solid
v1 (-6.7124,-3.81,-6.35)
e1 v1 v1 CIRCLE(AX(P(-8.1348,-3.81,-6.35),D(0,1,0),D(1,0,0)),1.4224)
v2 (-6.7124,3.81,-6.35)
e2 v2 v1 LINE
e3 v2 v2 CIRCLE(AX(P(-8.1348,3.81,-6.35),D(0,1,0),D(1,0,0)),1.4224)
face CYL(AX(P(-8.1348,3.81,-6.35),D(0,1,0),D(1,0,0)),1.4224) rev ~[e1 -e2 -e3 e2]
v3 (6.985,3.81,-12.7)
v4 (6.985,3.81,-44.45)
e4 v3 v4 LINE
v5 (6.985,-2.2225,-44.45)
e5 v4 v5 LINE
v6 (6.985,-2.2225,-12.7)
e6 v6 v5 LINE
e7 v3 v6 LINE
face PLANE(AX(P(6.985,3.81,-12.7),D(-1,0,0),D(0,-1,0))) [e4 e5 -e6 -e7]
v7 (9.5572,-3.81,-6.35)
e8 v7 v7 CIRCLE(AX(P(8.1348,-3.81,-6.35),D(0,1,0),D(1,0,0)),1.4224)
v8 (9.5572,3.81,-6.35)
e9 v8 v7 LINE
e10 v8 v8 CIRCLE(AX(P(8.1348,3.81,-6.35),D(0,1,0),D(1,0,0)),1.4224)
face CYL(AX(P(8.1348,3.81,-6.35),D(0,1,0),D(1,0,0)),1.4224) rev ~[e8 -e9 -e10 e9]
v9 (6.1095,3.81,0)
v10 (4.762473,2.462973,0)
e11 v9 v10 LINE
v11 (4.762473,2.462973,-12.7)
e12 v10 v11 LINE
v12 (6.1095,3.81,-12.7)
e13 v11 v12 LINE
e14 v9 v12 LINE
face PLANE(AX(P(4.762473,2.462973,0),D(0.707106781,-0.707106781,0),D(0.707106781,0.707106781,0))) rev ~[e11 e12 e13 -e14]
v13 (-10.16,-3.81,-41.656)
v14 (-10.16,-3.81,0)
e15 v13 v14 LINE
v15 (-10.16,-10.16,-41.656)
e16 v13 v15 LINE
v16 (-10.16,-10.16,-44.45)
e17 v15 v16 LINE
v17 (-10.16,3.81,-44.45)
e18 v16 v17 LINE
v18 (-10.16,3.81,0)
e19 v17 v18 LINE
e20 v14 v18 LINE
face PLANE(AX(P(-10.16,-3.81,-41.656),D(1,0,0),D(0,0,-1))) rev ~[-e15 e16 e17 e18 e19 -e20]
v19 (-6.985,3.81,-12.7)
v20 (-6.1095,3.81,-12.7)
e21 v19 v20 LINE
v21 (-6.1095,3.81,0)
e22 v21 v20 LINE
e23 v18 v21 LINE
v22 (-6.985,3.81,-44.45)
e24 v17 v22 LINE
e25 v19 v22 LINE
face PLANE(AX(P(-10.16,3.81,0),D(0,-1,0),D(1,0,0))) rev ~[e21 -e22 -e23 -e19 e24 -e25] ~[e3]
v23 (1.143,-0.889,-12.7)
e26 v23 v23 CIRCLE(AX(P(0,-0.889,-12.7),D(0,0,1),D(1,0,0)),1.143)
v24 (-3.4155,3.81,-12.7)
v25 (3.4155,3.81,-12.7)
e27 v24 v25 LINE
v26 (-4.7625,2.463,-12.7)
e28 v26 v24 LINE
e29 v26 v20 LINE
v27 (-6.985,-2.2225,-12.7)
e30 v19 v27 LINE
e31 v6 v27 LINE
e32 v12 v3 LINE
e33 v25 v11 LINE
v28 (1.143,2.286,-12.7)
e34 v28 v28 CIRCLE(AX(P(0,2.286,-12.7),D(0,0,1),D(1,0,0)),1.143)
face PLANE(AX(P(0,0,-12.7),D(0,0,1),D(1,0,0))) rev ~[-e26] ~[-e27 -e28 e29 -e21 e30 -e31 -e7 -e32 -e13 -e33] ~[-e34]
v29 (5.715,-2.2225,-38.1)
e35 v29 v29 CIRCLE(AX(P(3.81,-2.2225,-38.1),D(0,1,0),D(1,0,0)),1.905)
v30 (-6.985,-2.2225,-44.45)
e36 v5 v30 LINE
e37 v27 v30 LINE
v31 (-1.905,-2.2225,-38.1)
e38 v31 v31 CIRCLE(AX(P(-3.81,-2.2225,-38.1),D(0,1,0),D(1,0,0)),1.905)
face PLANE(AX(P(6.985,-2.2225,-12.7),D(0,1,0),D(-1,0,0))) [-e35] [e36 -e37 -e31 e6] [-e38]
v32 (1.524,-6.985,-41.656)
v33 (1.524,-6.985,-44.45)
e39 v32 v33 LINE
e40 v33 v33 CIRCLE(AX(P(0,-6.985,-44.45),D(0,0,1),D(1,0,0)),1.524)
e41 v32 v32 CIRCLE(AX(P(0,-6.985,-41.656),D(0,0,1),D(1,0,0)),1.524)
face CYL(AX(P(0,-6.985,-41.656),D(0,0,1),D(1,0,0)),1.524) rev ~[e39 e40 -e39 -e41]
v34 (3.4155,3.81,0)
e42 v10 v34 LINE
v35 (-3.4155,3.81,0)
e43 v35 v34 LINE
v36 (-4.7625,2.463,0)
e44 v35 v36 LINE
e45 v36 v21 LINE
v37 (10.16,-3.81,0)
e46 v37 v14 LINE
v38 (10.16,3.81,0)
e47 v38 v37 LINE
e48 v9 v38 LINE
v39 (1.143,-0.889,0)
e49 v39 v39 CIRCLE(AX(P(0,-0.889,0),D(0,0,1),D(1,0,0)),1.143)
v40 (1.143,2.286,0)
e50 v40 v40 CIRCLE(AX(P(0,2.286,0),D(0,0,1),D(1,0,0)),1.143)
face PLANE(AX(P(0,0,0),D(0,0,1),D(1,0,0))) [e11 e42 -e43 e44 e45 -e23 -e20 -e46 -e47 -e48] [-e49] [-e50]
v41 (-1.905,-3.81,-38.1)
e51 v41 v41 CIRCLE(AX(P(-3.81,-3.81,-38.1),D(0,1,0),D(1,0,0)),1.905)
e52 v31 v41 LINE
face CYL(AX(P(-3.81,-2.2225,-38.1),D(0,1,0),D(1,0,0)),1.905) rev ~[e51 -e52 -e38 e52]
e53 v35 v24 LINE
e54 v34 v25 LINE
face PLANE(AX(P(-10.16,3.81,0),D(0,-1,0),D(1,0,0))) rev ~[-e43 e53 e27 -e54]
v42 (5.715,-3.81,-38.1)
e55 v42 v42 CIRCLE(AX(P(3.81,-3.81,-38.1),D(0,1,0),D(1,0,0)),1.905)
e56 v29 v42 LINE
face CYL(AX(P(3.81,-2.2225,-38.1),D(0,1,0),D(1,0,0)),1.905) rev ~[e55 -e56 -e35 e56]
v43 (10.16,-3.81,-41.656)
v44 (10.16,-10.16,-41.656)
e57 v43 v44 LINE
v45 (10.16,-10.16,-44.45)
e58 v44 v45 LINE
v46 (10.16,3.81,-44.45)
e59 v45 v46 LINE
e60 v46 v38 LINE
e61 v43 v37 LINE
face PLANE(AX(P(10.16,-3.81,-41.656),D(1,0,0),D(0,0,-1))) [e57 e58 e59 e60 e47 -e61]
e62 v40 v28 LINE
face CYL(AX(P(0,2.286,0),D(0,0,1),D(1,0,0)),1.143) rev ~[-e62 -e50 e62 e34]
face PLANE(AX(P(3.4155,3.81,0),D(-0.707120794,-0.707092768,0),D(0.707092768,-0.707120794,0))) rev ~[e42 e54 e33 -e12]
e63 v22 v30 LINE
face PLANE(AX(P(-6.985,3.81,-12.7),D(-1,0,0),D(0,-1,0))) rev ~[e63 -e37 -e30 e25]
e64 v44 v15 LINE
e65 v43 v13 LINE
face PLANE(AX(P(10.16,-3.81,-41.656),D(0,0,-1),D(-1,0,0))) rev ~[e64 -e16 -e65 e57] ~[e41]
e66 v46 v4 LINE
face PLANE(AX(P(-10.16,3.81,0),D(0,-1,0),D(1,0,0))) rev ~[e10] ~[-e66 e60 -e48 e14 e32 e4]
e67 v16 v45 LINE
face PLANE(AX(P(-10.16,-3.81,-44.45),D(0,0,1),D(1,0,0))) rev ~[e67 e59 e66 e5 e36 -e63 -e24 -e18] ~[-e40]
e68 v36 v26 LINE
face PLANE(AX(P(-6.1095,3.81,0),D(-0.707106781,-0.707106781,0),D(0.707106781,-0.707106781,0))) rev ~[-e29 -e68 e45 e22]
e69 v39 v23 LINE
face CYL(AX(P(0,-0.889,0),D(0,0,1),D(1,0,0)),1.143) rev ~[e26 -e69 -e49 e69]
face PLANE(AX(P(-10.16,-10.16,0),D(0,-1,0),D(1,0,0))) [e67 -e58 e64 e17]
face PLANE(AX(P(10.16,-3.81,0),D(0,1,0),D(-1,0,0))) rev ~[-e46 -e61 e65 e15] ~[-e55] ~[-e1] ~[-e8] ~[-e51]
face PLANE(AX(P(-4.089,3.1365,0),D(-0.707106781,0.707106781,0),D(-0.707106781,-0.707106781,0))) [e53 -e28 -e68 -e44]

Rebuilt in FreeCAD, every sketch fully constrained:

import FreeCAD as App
import Part
import Sketcher
Q = App.Units.Quantity


def add_polygon(sketch, points):
    """Adds a closed chain of lines whose ends are joined by coincident constraints."""
    first, n = sketch.GeometryCount, len(points)
    for a, b in zip(points, points[1:] + points[:1]):
        sketch.addGeometry(Part.LineSegment(App.Vector(*a, 0), App.Vector(*b, 0)), False)
    for i in range(n):
        sketch.addConstraint(Sketcher.Constraint("Coincident", first + i, 2, first + (i + 1) % n, 1))

doc = App.newDocument("Part")
body = doc.addObject("PartDesign::Body", "Body")

sketch1 = doc.addObject("Sketcher::SketchObject", "Sketch")
body.addObject(sketch1)
sketch1.AttachmentSupport = (doc.XY_Plane, [""])
sketch1.MapMode = "FlatFace"
add_polygon(sketch1, [(10, 4), (-10, 4), (-10, -4), (10, -4)])
sketch1.addConstraint(Sketcher.Constraint("Horizontal", 0))
sketch1.addConstraint(Sketcher.Constraint("Vertical", 1))
sketch1.addConstraint(Sketcher.Constraint("Horizontal", 2))
sketch1.addConstraint(Sketcher.Constraint("Vertical", 3))
sketch1.addConstraint(Sketcher.Constraint("Symmetric", 0, 2, 2, 2, -1, 1))
sketch1.addConstraint(Sketcher.Constraint("DistanceX", 0, 2, 0, 1, Q("0.8 in")))
sketch1.addConstraint(Sketcher.Constraint("DistanceY", 1, 2, 1, 1, Q("0.3 in")))
pad1 = doc.addObject("PartDesign::Pad", "Pad")
body.addObject(pad1)
pad1.Profile = sketch1
pad1.Length = Q("0.5 in")
pad1.Reversed = True

sketch2 = doc.addObject("Sketcher::SketchObject", "Sketch001")
body.addObject(sketch2)
sketch2.AttachmentSupport = (doc.XY_Plane, [""])
sketch2.MapMode = "FlatFace"
add_polygon(sketch2, [(3.4, 3.8), (4.8, 2.5), (6.1, 3.8)])
add_polygon(sketch2, [(-6.1, 3.8), (-4.8, 2.5), (-3.4, 3.8)])
sketch2.addGeometry(Part.Circle(App.Vector(0, 2.3, 0), App.Vector(0, 0, 1), 1.1), False)
sketch2.addGeometry(Part.Circle(App.Vector(0, -0.9, 0), App.Vector(0, 0, 1), 1.1), False)
sketch2.addConstraint(Sketcher.Constraint("Horizontal", 2))
sketch2.addConstraint(Sketcher.Constraint("Horizontal", 5))
sketch2.addConstraint(Sketcher.Constraint("Equal", 6, 7))
sketch2.addConstraint(Sketcher.Constraint("Symmetric", 0, 2, 3, 2, -2))
sketch2.addConstraint(Sketcher.Constraint("Symmetric", 2, 2, 4, 2, -2))
sketch2.addConstraint(Sketcher.Constraint("PointOnObject", 6, 3, -2))
sketch2.addConstraint(Sketcher.Constraint("PointOnObject", 7, 3, -2))
sketch2.addConstraint(Sketcher.Constraint("Perpendicular", 0, 1))
sketch2.addConstraint(Sketcher.Constraint("Perpendicular", 1, 3))
sketch2.addConstraint(Sketcher.Constraint("Perpendicular", 3, 4))
sketch2.addConstraint(Sketcher.Constraint("Diameter", 6, Q("0.09 in")))
sketch2.addConstraint(Sketcher.Constraint("DistanceY", -1, 1, 6, 3, Q("0.09 in")))
sketch2.addConstraint(Sketcher.Constraint("DistanceY", 6, 3, 1, 2, Q("0.06 in")))
sketch2.addConstraint(Sketcher.Constraint("Distance", 0, Q("0.075 in")))
sketch2.addConstraint(Sketcher.Constraint("DistanceX", -1, 1, 0, 2, Q("0.1875 in")))
sketch2.addConstraint(Sketcher.Constraint("DistanceY", 7, 3, 6, 3, Q("0.125 in")))
pocket1 = doc.addObject("PartDesign::Pocket", "Pocket")
body.addObject(pocket1)
pocket1.Profile = sketch2
pocket1.Length = Q("0.5 in")

sketch3 = doc.addObject("Sketcher::SketchObject", "Sketch002")
body.addObject(sketch3)
sketch3.AttachmentSupport = (doc.XZ_Plane, [""])
sketch3.MapMode = "FlatFace"
sketch3.AttachmentOffset = App.Placement(App.Vector(0, 0, -0.15 * 25.4), App.Rotation())
sketch3.addGeometry(Part.Circle(App.Vector(-8.1, -6.3, 0), App.Vector(0, 0, 1), 1.4), False)
sketch3.addConstraint(Sketcher.Constraint("Diameter", 0, Q("0.112 in")))
sketch3.addConstraint(Sketcher.Constraint("DistanceY", 0, 3, -1, 1, Q("0.25 in")))
sketch3.addConstraint(Sketcher.Constraint("DistanceX", 0, 3, -1, 1, 8.1348))
pocket2 = doc.addObject("PartDesign::Pocket", "Pocket001")
body.addObject(pocket2)
pocket2.Profile = sketch3
pocket2.Length = Q("0.5 in")
pocket2.Reversed = True

sketch4 = doc.addObject("Sketcher::SketchObject", "Sketch003")
body.addObject(sketch4)
sketch4.AttachmentSupport = (doc.XZ_Plane, [""])
sketch4.MapMode = "FlatFace"
sketch4.AttachmentOffset = App.Placement(App.Vector(0, 0, -0.15 * 25.4), App.Rotation())
sketch4.addGeometry(Part.Circle(App.Vector(8.1, -6.3, 0), App.Vector(0, 0, 1), 1.4), False)
sketch4.addConstraint(Sketcher.Constraint("Diameter", 0, Q("0.112 in")))
sketch4.addConstraint(Sketcher.Constraint("DistanceY", 0, 3, -1, 1, Q("0.25 in")))
sketch4.addConstraint(Sketcher.Constraint("DistanceX", -1, 1, 0, 3, 8.1348))
pocket3 = doc.addObject("PartDesign::Pocket", "Pocket002")
body.addObject(pocket3)
pocket3.Profile = sketch4
pocket3.Length = Q("0.5 in")
pocket3.Reversed = True

sketch5 = doc.addObject("Sketcher::SketchObject", "Sketch004")
body.addObject(sketch5)
sketch5.AttachmentSupport = (doc.XY_Plane, [""])
sketch5.MapMode = "FlatFace"
sketch5.AttachmentOffset = App.Placement(App.Vector(0, 0, -0.5 * 25.4), App.Rotation())
add_polygon(sketch5, [(10.2, -3.8), (-10.2, -3.8), (-10.2, 3.8), (-7, 3.8), (-7, -2.2), (7, -2.2), (7, 3.8), (10.2, 3.8)])
sketch5.addConstraint(Sketcher.Constraint("Horizontal", 0))
sketch5.addConstraint(Sketcher.Constraint("Vertical", 1))
sketch5.addConstraint(Sketcher.Constraint("Horizontal", 2))
sketch5.addConstraint(Sketcher.Constraint("Vertical", 3))
sketch5.addConstraint(Sketcher.Constraint("Horizontal", 4))
sketch5.addConstraint(Sketcher.Constraint("Vertical", 5))
sketch5.addConstraint(Sketcher.Constraint("Horizontal", 6))
sketch5.addConstraint(Sketcher.Constraint("Vertical", 7))
sketch5.addConstraint(Sketcher.Constraint("Symmetric", 0, 2, 6, 2, -1, 1))
sketch5.addConstraint(Sketcher.Constraint("Symmetric", 2, 2, 5, 2, -2))
sketch5.addConstraint(Sketcher.Constraint("DistanceX", 2, 1, 2, 2, Q("0.125 in")))
sketch5.addConstraint(Sketcher.Constraint("DistanceX", 0, 2, 0, 1, Q("0.8 in")))
sketch5.addConstraint(Sketcher.Constraint("DistanceY", 1, 1, 1, 2, Q("0.3 in")))
sketch5.addConstraint(Sketcher.Constraint("DistanceY", 0, 2, 3, 2, Q("0.0625 in")))
pad2 = doc.addObject("PartDesign::Pad", "Pad001")
body.addObject(pad2)
pad2.Profile = sketch5
pad2.Length = Q("1.25 in")
pad2.Reversed = True

sketch6 = doc.addObject("Sketcher::SketchObject", "Sketch005")
body.addObject(sketch6)
sketch6.AttachmentSupport = (doc.XZ_Plane, [""])
sketch6.MapMode = "FlatFace"
sketch6.AttachmentOffset = App.Placement(App.Vector(0, 0, 0.15 * 25.4), App.Rotation())
add_polygon(sketch6, [(10.2, -44.5), (10.2, -41.7), (-10.2, -41.7), (-10.2, -44.5)])
sketch6.addConstraint(Sketcher.Constraint("Vertical", 0))
sketch6.addConstraint(Sketcher.Constraint("Horizontal", 1))
sketch6.addConstraint(Sketcher.Constraint("Vertical", 2))
sketch6.addConstraint(Sketcher.Constraint("Horizontal", 3))
sketch6.addConstraint(Sketcher.Constraint("DistanceY", 0, 1, 0, 2, Q("0.11 in")))
sketch6.addConstraint(Sketcher.Constraint("DistanceX", 1, 2, 1, 1, Q("0.8 in")))
sketch6.addConstraint(Sketcher.Constraint("DistanceX", -1, 1, 0, 2, Q("0.4 in")))
sketch6.addConstraint(Sketcher.Constraint("DistanceY", 0, 2, -1, 1, Q("1.64 in")))
pad3 = doc.addObject("PartDesign::Pad", "Pad002")
body.addObject(pad3)
pad3.Profile = sketch6
pad3.Length = Q("0.25 in")

sketch7 = doc.addObject("Sketcher::SketchObject", "Sketch006")
body.addObject(sketch7)
sketch7.AttachmentSupport = (doc.XY_Plane, [""])
sketch7.MapMode = "FlatFace"
sketch7.AttachmentOffset = App.Placement(App.Vector(0, 0, -1.64 * 25.4), App.Rotation())
sketch7.addGeometry(Part.Circle(App.Vector(0, -7, 0), App.Vector(0, 0, 1), 1.5), False)
sketch7.addConstraint(Sketcher.Constraint("PointOnObject", 0, 3, -2))
sketch7.addConstraint(Sketcher.Constraint("Diameter", 0, Q("0.12 in")))
sketch7.addConstraint(Sketcher.Constraint("DistanceY", 0, 3, -1, 1, Q("0.275 in")))
pocket4 = doc.addObject("PartDesign::Pocket", "Pocket003")
body.addObject(pocket4)
pocket4.Profile = sketch7
pocket4.Length = Q("0.3 in")

sketch8 = doc.addObject("Sketcher::SketchObject", "Sketch007")
body.addObject(sketch8)
sketch8.AttachmentSupport = (doc.XZ_Plane, [""])
sketch8.MapMode = "FlatFace"
sketch8.AttachmentOffset = App.Placement(App.Vector(0, 0, 0.0875 * 25.4), App.Rotation())
sketch8.addGeometry(Part.Circle(App.Vector(-3.8, -38.1, 0), App.Vector(0, 0, 1), 1.9), False)
sketch8.addGeometry(Part.Circle(App.Vector(3.8, -38.1, 0), App.Vector(0, 0, 1), 1.9), False)
sketch8.addConstraint(Sketcher.Constraint("Equal", 0, 1))
sketch8.addConstraint(Sketcher.Constraint("Symmetric", 0, 3, 1, 3, -2))
sketch8.addConstraint(Sketcher.Constraint("Diameter", 0, Q("0.15 in")))
sketch8.addConstraint(Sketcher.Constraint("DistanceX", 0, 3, -1, 1, Q("0.15 in")))
sketch8.addConstraint(Sketcher.Constraint("DistanceY", 0, 3, -1, 1, Q("1.5 in")))
pocket5 = doc.addObject("PartDesign::Pocket", "Pocket004")
body.addObject(pocket5)
pocket5.Profile = sketch8
pocket5.Length = Q("0.3 in")
pocket5.Reversed = True

doc.recompute()
